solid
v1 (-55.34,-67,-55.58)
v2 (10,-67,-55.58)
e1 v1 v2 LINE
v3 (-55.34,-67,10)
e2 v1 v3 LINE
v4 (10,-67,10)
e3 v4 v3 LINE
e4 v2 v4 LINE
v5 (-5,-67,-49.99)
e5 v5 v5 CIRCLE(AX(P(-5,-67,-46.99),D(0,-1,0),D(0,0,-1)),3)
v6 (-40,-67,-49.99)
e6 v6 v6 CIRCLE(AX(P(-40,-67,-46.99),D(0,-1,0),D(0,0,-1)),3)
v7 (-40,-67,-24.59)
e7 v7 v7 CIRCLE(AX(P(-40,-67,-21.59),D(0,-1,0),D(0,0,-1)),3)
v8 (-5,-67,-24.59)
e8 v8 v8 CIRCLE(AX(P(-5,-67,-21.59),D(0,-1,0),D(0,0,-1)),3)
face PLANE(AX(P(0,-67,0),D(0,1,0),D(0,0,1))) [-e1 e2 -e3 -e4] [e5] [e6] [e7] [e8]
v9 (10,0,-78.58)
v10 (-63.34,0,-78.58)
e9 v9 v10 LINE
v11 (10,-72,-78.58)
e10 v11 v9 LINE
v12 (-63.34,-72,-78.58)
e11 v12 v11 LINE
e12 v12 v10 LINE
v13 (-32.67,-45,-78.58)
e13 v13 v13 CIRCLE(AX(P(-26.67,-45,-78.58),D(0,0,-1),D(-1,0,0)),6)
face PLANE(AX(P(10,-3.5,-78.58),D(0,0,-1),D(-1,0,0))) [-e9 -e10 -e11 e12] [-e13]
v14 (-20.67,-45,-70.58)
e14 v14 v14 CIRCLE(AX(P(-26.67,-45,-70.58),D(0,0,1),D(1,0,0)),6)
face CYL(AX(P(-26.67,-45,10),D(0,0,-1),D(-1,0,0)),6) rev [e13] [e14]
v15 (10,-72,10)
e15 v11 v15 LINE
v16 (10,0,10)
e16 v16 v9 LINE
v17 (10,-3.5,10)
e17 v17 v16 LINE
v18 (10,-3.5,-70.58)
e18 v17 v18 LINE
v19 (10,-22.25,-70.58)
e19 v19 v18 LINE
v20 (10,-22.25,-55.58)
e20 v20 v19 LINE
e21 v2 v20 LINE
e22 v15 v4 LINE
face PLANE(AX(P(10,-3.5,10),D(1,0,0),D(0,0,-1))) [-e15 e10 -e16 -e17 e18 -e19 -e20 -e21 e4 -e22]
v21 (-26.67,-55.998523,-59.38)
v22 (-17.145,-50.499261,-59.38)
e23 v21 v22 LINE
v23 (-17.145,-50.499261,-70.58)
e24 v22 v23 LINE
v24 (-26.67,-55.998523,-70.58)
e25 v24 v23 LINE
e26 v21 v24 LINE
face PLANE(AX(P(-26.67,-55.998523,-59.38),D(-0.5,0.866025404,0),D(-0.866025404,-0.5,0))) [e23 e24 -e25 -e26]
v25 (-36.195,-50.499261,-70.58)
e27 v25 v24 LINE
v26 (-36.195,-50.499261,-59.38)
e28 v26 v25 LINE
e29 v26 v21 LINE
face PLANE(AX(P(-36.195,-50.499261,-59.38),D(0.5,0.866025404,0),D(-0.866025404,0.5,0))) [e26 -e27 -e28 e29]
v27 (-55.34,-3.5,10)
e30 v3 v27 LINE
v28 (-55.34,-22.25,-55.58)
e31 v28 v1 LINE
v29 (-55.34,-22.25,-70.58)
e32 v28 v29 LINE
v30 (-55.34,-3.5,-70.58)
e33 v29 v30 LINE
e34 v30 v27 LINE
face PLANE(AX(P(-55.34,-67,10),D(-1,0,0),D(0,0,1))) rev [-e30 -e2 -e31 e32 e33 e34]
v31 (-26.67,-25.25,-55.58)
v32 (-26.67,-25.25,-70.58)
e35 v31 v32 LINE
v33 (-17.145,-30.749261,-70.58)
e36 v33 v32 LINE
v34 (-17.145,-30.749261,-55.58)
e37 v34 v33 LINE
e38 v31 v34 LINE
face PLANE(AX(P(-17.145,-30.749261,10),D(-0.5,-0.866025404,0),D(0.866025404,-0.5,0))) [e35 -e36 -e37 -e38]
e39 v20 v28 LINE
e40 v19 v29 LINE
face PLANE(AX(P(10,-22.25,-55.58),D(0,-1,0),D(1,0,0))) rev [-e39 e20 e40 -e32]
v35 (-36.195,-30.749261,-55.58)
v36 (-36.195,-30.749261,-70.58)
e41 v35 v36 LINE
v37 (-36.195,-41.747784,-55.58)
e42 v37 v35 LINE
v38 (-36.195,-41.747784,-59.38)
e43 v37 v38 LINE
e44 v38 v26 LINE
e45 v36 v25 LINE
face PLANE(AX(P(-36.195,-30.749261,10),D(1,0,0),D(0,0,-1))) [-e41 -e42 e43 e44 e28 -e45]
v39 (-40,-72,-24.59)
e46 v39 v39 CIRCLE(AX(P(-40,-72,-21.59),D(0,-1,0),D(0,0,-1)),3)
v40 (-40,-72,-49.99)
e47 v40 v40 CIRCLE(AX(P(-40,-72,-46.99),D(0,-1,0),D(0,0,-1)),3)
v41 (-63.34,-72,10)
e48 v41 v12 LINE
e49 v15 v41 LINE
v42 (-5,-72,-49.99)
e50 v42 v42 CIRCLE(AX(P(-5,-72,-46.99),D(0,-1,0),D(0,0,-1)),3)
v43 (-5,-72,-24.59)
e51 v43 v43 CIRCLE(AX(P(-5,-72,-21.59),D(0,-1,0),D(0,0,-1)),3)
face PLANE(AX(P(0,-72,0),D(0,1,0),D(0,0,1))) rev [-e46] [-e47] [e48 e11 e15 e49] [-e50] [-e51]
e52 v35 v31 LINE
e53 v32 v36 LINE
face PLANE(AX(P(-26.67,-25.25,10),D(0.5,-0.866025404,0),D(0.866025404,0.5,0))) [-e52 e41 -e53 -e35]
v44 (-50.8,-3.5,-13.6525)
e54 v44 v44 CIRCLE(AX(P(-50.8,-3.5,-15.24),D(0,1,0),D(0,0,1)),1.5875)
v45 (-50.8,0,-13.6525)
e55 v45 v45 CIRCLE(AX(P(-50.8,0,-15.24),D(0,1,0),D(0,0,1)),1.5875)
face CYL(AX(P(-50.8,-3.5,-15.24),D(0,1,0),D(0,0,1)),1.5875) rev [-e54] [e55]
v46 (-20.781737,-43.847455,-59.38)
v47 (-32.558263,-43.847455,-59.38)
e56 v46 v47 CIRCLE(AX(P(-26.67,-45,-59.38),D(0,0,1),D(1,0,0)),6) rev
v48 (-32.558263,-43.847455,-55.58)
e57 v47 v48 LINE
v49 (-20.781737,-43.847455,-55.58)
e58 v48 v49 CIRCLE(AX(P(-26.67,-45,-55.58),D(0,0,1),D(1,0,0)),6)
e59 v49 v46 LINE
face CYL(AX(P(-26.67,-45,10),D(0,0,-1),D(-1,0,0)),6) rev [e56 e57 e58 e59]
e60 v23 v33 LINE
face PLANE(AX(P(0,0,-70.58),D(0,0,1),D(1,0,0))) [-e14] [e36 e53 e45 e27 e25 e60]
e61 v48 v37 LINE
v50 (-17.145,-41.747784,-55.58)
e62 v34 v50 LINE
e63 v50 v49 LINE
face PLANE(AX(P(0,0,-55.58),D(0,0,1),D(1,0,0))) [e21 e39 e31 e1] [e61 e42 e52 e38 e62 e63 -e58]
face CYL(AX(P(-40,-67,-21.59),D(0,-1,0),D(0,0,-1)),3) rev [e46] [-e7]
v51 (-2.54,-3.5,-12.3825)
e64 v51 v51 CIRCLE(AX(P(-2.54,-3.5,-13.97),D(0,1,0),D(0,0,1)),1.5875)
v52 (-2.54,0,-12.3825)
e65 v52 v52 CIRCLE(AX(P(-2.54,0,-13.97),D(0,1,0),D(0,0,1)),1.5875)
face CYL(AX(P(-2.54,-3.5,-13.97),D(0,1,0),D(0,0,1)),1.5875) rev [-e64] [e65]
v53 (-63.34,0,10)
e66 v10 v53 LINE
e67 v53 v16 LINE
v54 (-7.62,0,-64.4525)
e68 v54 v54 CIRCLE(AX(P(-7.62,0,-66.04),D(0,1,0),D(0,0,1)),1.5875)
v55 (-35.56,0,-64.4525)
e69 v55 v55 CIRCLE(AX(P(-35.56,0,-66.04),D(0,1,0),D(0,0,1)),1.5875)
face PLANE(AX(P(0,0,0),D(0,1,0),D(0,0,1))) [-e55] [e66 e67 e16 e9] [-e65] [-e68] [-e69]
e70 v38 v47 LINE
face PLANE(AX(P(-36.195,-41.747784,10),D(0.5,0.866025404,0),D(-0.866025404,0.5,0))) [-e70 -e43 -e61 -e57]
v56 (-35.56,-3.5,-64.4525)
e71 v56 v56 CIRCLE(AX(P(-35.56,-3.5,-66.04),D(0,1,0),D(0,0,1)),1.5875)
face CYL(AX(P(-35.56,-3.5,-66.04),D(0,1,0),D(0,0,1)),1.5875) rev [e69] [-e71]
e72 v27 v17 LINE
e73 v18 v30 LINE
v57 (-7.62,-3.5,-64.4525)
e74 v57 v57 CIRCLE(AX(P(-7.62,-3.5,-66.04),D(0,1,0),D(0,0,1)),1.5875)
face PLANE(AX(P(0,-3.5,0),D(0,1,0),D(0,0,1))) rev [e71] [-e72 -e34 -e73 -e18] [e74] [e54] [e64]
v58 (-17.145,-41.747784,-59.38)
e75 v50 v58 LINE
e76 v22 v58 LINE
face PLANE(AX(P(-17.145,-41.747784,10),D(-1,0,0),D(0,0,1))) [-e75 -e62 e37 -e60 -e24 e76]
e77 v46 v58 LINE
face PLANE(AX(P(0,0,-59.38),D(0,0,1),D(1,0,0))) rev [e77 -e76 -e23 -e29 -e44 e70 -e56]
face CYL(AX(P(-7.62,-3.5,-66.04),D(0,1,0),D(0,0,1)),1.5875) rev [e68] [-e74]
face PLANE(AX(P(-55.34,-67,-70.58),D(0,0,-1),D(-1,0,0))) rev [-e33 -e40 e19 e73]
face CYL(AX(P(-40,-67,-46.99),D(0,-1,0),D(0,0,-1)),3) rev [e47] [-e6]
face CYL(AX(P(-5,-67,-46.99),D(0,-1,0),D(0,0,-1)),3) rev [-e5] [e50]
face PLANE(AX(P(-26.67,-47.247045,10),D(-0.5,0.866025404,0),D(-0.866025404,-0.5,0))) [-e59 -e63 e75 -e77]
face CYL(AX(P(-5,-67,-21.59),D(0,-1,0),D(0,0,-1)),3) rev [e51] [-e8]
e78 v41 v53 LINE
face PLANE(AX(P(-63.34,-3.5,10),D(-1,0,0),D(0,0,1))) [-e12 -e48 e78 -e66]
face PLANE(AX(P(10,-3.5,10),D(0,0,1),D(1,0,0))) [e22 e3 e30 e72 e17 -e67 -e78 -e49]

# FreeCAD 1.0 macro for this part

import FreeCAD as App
import Part
import Sketcher
Q = App.Units.Quantity

doc = App.newDocument("Part")
params = doc.addObject("Spreadsheet::Sheet", "Params")
for row, (alias, value) in enumerate([
    ("sketch1_width", "73.34 mm"),
    ("sketch1_height", "88.58 mm"),
    ("pad1_length", "3.5 mm"),
    ("pocket1_length", "3.5 mm"),
    ("sketch3_width", "8 mm"),
    ("sketch3_width2", "73.34 mm"),
    ("sketch3_height", "80.58 mm"),
    ("pad2_length", "63.5 mm"),
    ("sketch4_width", "73.34 mm"),
    ("sketch4_height", "88.58 mm"),
    ("pad3_length", "5 mm"),
    ("sketch5_diameter", "6 mm"),
    ("pocket2_length", "5 mm"),
    ("sketch6_width", "65.34 mm"),
    ("sketch6_height", "44.75 mm"),
    ("pad4_length", "15 mm"),
    ("sketch8_diameter", "12 mm"),
    ("pocket5_length", "11.2 mm"),
], start=1):
    params.set(f"A{row}", alias)
    params.set(f"B{row}", "=" + value)
    params.setAlias(f"B{row}", alias)

body = doc.addObject("PartDesign::Body", "Body")

# Sketch on XZ plane
sketch1 = doc.addObject("Sketcher::SketchObject", "Sketch")
body.addObject(sketch1)
sketch1.AttachmentSupport = (doc.XZ_Plane, [""])
sketch1.MapMode = "FlatFace"
sketch1.addGeometry([
    Part.LineSegment(App.Vector(-63.34, -78.58, 0), App.Vector(-63.34, 10, 0)),
    Part.LineSegment(App.Vector(-63.34, 10, 0), App.Vector(10, 10, 0)),
    Part.LineSegment(App.Vector(10, 10, 0), App.Vector(10, -78.58, 0)),
    Part.LineSegment(App.Vector(10, -78.58, 0), App.Vector(-63.34, -78.58, 0)),
], False)
sketch1.addConstraint([
    Sketcher.Constraint("Coincident", 0, 2, 1, 1),
    Sketcher.Constraint("Coincident", 1, 2, 2, 1),
    Sketcher.Constraint("Coincident", 2, 2, 3, 1),
    Sketcher.Constraint("Coincident", 3, 2, 0, 1),
    Sketcher.Constraint("Vertical", 0),
    Sketcher.Constraint("Horizontal", 1),
    Sketcher.Constraint("Vertical", 2),
    Sketcher.Constraint("Horizontal", 3),
    Sketcher.Constraint("DistanceY", -1, 1, 0, 2, 10.0),
    Sketcher.Constraint("DistanceX", -1, 1, 1, 2, 10.0),
    Sketcher.Constraint("DistanceX", 1, 1, 1, 2, 73.34),
    Sketcher.Constraint("DistanceY", 0, 1, 0, 2, 88.58),
])
sketch1.setExpression("Constraints[10]", "Params.sketch1_width")
sketch1.setExpression("Constraints[11]", "Params.sketch1_height")
pad1 = doc.addObject("PartDesign::Pad", "Pad")
body.addObject(pad1)
pad1.Profile = sketch1
pad1.setExpression("Length", "Params.pad1_length")

# Sketch on XZ plane
sketch2 = doc.addObject("Sketcher::SketchObject", "Sketch001")
body.addObject(sketch2)
sketch2.AttachmentSupport = (doc.XZ_Plane, [""])
sketch2.MapMode = "FlatFace"
sketch2.addGeometry([
    Part.Circle(App.Vector(-7.62, -66.04, 0), App.Vector(0, 0, 1), 1.5875),
    Part.Circle(App.Vector(-35.56, -66.04, 0), App.Vector(0, 0, 1), 1.5875),
    Part.Circle(App.Vector(-2.54, -13.97, 0), App.Vector(0, 0, 1), 1.5875),
    Part.Circle(App.Vector(-50.8, -15.24, 0), App.Vector(0, 0, 1), 1.5875),
], False)
sketch2.addConstraint([
    Sketcher.Constraint("Equal", 0, 1),
    Sketcher.Constraint("Equal", 1, 2),
    Sketcher.Constraint("Equal", 2, 3),
    Sketcher.Constraint("Horizontal", 0, 3, 1, 3),
    Sketcher.Constraint("Diameter", 0, 3.175),
    Sketcher.Constraint("DistanceX", 3, 3, -1, 1, 50.8),
    Sketcher.Constraint("DistanceY", 1, 3, 3, 3, 50.8),
    Sketcher.Constraint("DistanceX", 0, 3, -1, 1, 7.62),
    Sketcher.Constraint("DistanceY", 0, 3, -1, 1, 66.04),
    Sketcher.Constraint("DistanceX", 1, 3, -1, 1, 35.56),
    Sketcher.Constraint("DistanceX", 2, 3, -1, 1, 2.54),
    Sketcher.Constraint("DistanceY", 2, 3, -1, 1, 13.97),
])
pocket1 = doc.addObject("PartDesign::Pocket", "Pocket")
body.addObject(pocket1)
pocket1.Profile = sketch2
pocket1.setExpression("Length", "Params.pocket1_length")
pocket1.Reversed = True

# Sketch on XZ plane
sketch3 = doc.addObject("Sketcher::SketchObject", "Sketch002")
body.addObject(sketch3)
sketch3.AttachmentSupport = (doc.XZ_Plane, [""])
sketch3.MapMode = "FlatFace"
sketch3.AttachmentOffset = App.Placement(App.Vector(0, 0, 3.5), App.Rotation())
sketch3.addGeometry([
    Part.LineSegment(App.Vector(-63.34, -78.58, 0), App.Vector(10, -78.58, 0)),  # 0
    Part.LineSegment(App.Vector(10, -78.58, 0), App.Vector(10, -70.58, 0)),  # 1
    Part.LineSegment(App.Vector(10, -70.58, 0), App.Vector(-55.34, -70.58, 0)),  # 2
    Part.LineSegment(App.Vector(-55.34, -70.58, 0), App.Vector(-55.34, 10, 0)),  # 3
    Part.LineSegment(App.Vector(-55.34, 10, 0), App.Vector(-63.34, 10, 0)),  # 4
    Part.LineSegment(App.Vector(-63.34, 10, 0), App.Vector(-63.34, -78.58, 0)),  # 5
], False)
sketch3.addConstraint([
    Sketcher.Constraint("Coincident", 0, 2, 1, 1),
    Sketcher.Constraint("Coincident", 1, 2, 2, 1),
    Sketcher.Constraint("Coincident", 2, 2, 3, 1),
    Sketcher.Constraint("Coincident", 3, 2, 4, 1),
    Sketcher.Constraint("Coincident", 4, 2, 5, 1),
    Sketcher.Constraint("Coincident", 5, 2, 0, 1),
    Sketcher.Constraint("Horizontal", 0),
    Sketcher.Constraint("Vertical", 1),
    Sketcher.Constraint("Horizontal", 2),
    Sketcher.Constraint("Vertical", 3),
    Sketcher.Constraint("Horizontal", 4),
    Sketcher.Constraint("Vertical", 5),
    Sketcher.Constraint("Equal", 4, 1),
    Sketcher.Constraint("DistanceX", 4, 2, 4, 1, 8.0),
    Sketcher.Constraint("DistanceX", -1, 1, 0, 2, 10.0),
    Sketcher.Constraint("DistanceY", -1, 1, 3, 2, 10.0),
    Sketcher.Constraint("DistanceX", 0, 1, 0, 2, 73.34),
    Sketcher.Constraint("DistanceY", 3, 1, 3, 2, 80.58),
])
sketch3.setExpression("Constraints[13]", "Params.sketch3_width")
sketch3.setExpression("Constraints[16]", "Params.sketch3_width2")
sketch3.setExpression("Constraints[17]", "Params.sketch3_height")
pad2 = doc.addObject("PartDesign::Pad", "Pad001")
body.addObject(pad2)
pad2.Profile = sketch3
pad2.setExpression("Length", "Params.pad2_length")

# Sketch on XZ plane
sketch4 = doc.addObject("Sketcher::SketchObject", "Sketch003")
body.addObject(sketch4)
sketch4.AttachmentSupport = (doc.XZ_Plane, [""])
sketch4.MapMode = "FlatFace"
sketch4.AttachmentOffset = App.Placement(App.Vector(0, 0, 67), App.Rotation())
sketch4.addGeometry([
    Part.LineSegment(App.Vector(-63.34, 10, 0), App.Vector(-63.34, -78.58, 0)),
    Part.LineSegment(App.Vector(-63.34, -78.58, 0), App.Vector(10, -78.58, 0)),
    Part.LineSegment(App.Vector(10, -78.58, 0), App.Vector(10, 10, 0)),
    Part.LineSegment(App.Vector(10, 10, 0), App.Vector(-63.34, 10, 0)),
], False)
sketch4.addConstraint([
    Sketcher.Constraint("Coincident", 0, 2, 1, 1),
    Sketcher.Constraint("Coincident", 1, 2, 2, 1),
    Sketcher.Constraint("Coincident", 2, 2, 3, 1),
    Sketcher.Constraint("Coincident", 3, 2, 0, 1),
    Sketcher.Constraint("Vertical", 0),
    Sketcher.Constraint("Horizontal", 1),
    Sketcher.Constraint("Vertical", 2),
    Sketcher.Constraint("Horizontal", 3),
    Sketcher.Constraint("DistanceX", -1, 1, 1, 2, 10.0),
    Sketcher.Constraint("DistanceY", -1, 1, 2, 2, 10.0),
    Sketcher.Constraint("DistanceX", 1, 1, 1, 2, 73.34),
    Sketcher.Constraint("DistanceY", 0, 2, 0, 1, 88.58),
])
sketch4.setExpression("Constraints[10]", "Params.sketch4_width")
sketch4.setExpression("Constraints[11]", "Params.sketch4_height")
pad3 = doc.addObject("PartDesign::Pad", "Pad002")
body.addObject(pad3)
pad3.Profile = sketch4
pad3.setExpression("Length", "Params.pad3_length")

# Sketch on XZ plane
sketch5 = doc.addObject("Sketcher::SketchObject", "Sketch004")
body.addObject(sketch5)
sketch5.AttachmentSupport = (doc.XZ_Plane, [""])
sketch5.MapMode = "FlatFace"
sketch5.AttachmentOffset = App.Placement(App.Vector(0, 0, 72), App.Rotation())
sketch5.addGeometry([
    Part.Circle(App.Vector(-5, -21.59, 0), App.Vector(0, 0, 1), 3),
    Part.Circle(App.Vector(-5, -46.99, 0), App.Vector(0, 0, 1), 3),
    Part.Circle(App.Vector(-40, -21.59, 0), App.Vector(0, 0, 1), 3),
    Part.Circle(App.Vector(-40, -46.99, 0), App.Vector(0, 0, 1), 3),
], False)
sketch5.addConstraint([
    Sketcher.Constraint("Equal", 0, 1),
    Sketcher.Constraint("Equal", 1, 2),
    Sketcher.Constraint("Equal", 2, 3),
    Sketcher.Constraint("Horizontal", 0, 3, 2, 3),
    Sketcher.Constraint("Horizontal", 1, 3, 3, 3),
    Sketcher.Constraint("Vertical", 0, 3, 1, 3),
    Sketcher.Constraint("Vertical", 2, 3, 3, 3),
    Sketcher.Constraint("Diameter", 0, 6.0),
    Sketcher.Constraint("DistanceX", 0, 3, -1, 1, 5.0),
    Sketcher.Constraint("DistanceX", 2, 3, -1, 1, 40.0),
    Sketcher.Constraint("DistanceY", 1, 3, 0, 3, 25.4),
    Sketcher.Constraint("DistanceY", 0, 3, -1, 1, 21.59),
])
sketch5.setExpression("Constraints[7]", "Params.sketch5_diameter")
pocket2 = doc.addObject("PartDesign::Pocket", "Pocket001")
body.addObject(pocket2)
pocket2.Profile = sketch5
pocket2.setExpression("Length", "Params.pocket2_length")

# Sketch on XY plane
sketch6 = doc.addObject("Sketcher::SketchObject", "Sketch005")
body.addObject(sketch6)
sketch6.AttachmentSupport = (doc.XY_Plane, [""])
sketch6.MapMode = "FlatFace"
sketch6.AttachmentOffset = App.Placement(App.Vector(0, 0, -70.58), App.Rotation())
sketch6.addGeometry([
    Part.LineSegment(App.Vector(-55.34, -22.25, 0), App.Vector(-55.34, -67, 0)),
    Part.LineSegment(App.Vector(-55.34, -67, 0), App.Vector(10, -67, 0)),
    Part.LineSegment(App.Vector(10, -67, 0), App.Vector(10, -22.25, 0)),
    Part.LineSegment(App.Vector(10, -22.25, 0), App.Vector(-55.34, -22.25, 0)),
], False)
sketch6.addConstraint([
    Sketcher.Constraint("Coincident", 0, 2, 1, 1),
    Sketcher.Constraint("Coincident", 1, 2, 2, 1),
    Sketcher.Constraint("Coincident", 2, 2, 3, 1),
    Sketcher.Constraint("Coincident", 3, 2, 0, 1),
    Sketcher.Constraint("Vertical", 0),
    Sketcher.Constraint("Horizontal", 1),
    Sketcher.Constraint("Vertical", 2),
    Sketcher.Constraint("Horizontal", 3),
    Sketcher.Constraint("DistanceY", 0, 2, -1, 1, 67.0),
    Sketcher.Constraint("DistanceX", -1, 1, 1, 2, 10.0),
    Sketcher.Constraint("DistanceX", 1, 1, 1, 2, 65.34),
    Sketcher.Constraint("DistanceY", 0, 2, 0, 1, 44.75),
])
sketch6.setExpression("Constraints[10]", "Params.sketch6_width")
sketch6.setExpression("Constraints[11]", "Params.sketch6_height")
pad4 = doc.addObject("PartDesign::Pad", "Pad003")
body.addObject(pad4)
pad4.Profile = sketch6
pad4.setExpression("Length", "Params.pad4_length")

# Sketch on XY plane
sketch7 = doc.addObject("Sketcher::SketchObject", "Sketch006")
body.addObject(sketch7)
sketch7.AttachmentSupport = (doc.XY_Plane, [""])
sketch7.MapMode = "FlatFace"
sketch7.AttachmentOffset = App.Placement(App.Vector(0, 0, -70.58), App.Rotation())
sketch7.addGeometry([
    Part.LineSegment(App.Vector(-17.145, -41.747784, 0), App.Vector(-17.145, -30.749261, 0)),  # 0
    Part.LineSegment(App.Vector(-17.145, -30.749261, 0), App.Vector(-26.67, -25.25, 0)),  # 1
    Part.LineSegment(App.Vector(-26.67, -25.25, 0), App.Vector(-36.195, -30.749261, 0)),  # 2
    Part.LineSegment(App.Vector(-36.195, -30.749261, 0), App.Vector(-36.195, -41.747784, 0)),  # 3
    Part.LineSegment(App.Vector(-36.195, -41.747784, 0), App.Vector(-26.67, -47.247045, 0)),  # 4
    Part.LineSegment(App.Vector(-26.67, -47.247045, 0), App.Vector(-17.145, -41.747784, 0)),  # 5
], False)
sketch7.addConstraint([
    Sketcher.Constraint("Coincident", 0, 2, 1, 1),
    Sketcher.Constraint("Coincident", 1, 2, 2, 1),
    Sketcher.Constraint("Coincident", 2, 2, 3, 1),
    Sketcher.Constraint("Coincident", 3, 2, 4, 1),
    Sketcher.Constraint("Coincident", 4, 2, 5, 1),
    Sketcher.Constraint("Coincident", 5, 2, 0, 1),
    Sketcher.Constraint("Vertical", 0),
    Sketcher.Constraint("Vertical", 3),
    Sketcher.Constraint("Parallel", 1, 4),
    Sketcher.Constraint("Parallel", 2, 5),
    Sketcher.Constraint("Horizontal", 0, 2, 2, 2),
    Sketcher.Constraint("Horizontal", 3, 2, 5, 2),
    Sketcher.Constraint("Vertical", 1, 2, 4, 2),
    Sketcher.Constraint("Angle", 1, Q("150 deg")),
    Sketcher.Constraint("DistanceX", 1, 2, -1, 1, 26.67),
    Sketcher.Constraint("DistanceY", 1, 2, -1, 1, 25.25),
    Sketcher.Constraint("DistanceX", 2, 2, 0, 2, 19.05),
    Sketcher.Constraint("DistanceY", 0, 1, 0, 2, 10.998523),
])
pocket3 = doc.addObject("PartDesign::Pocket", "Pocket002")
body.addObject(pocket3)
pocket3.Profile = sketch7
pocket3.Type = "ThroughAll"
pocket3.Reversed = True

# Sketch on XY plane
sketch8 = doc.addObject("Sketcher::SketchObject", "Sketch007")
body.addObject(sketch8)
sketch8.AttachmentSupport = (doc.XY_Plane, [""])
sketch8.MapMode = "FlatFace"
sketch8.AttachmentOffset = App.Placement(App.Vector(0, 0, -78.58), App.Rotation())
sketch8.addGeometry(Part.Circle(App.Vector(-26.67, -45, 0), App.Vector(0, 0, 1), 6), False)
sketch8.addConstraint([
    Sketcher.Constraint("Diameter", 0, 12.0),
    Sketcher.Constraint("DistanceY", 0, 3, -1, 1, 45.0),
    Sketcher.Constraint("DistanceX", 0, 3, -1, 1, 26.67),
])
sketch8.setExpression("Constraints[0]", "Params.sketch8_diameter")
pocket4 = doc.addObject("PartDesign::Pocket", "Pocket003")
body.addObject(pocket4)
pocket4.Profile = sketch8
pocket4.Type = "ThroughAll"
pocket4.Reversed = True

# Sketch on XY plane
sketch9 = doc.addObject("Sketcher::SketchObject", "Sketch008")
body.addObject(sketch9)
sketch9.AttachmentSupport = (doc.XY_Plane, [""])
sketch9.MapMode = "FlatFace"
sketch9.AttachmentOffset = App.Placement(App.Vector(0, 0, -70.58), App.Rotation())
sketch9.addGeometry([
    Part.LineSegment(App.Vector(-17.145, -39.500739, 0), App.Vector(-26.67, -34.001477, 0)),  # 0
    Part.LineSegment(App.Vector(-26.67, -34.001477, 0), App.Vector(-36.195, -39.500739, 0)),  # 1
    Part.LineSegment(App.Vector(-36.195, -39.500739, 0), App.Vector(-36.195, -50.499261, 0)),  # 2
    Part.LineSegment(App.Vector(-36.195, -50.499261, 0), App.Vector(-26.67, -55.998523, 0)),  # 3
    Part.LineSegment(App.Vector(-26.67, -55.998523, 0), App.Vector(-17.145, -50.499261, 0)),  # 4
    Part.LineSegment(App.Vector(-17.145, -50.499261, 0), App.Vector(-17.145, -39.500739, 0)),  # 5
], False)
sketch9.addConstraint([
    Sketcher.Constraint("Coincident", 0, 2, 1, 1),
    Sketcher.Constraint("Coincident", 1, 2, 2, 1),
    Sketcher.Constraint("Coincident", 2, 2, 3, 1),
    Sketcher.Constraint("Coincident", 3, 2, 4, 1),
    Sketcher.Constraint("Coincident", 4, 2, 5, 1),
    Sketcher.Constraint("Coincident", 5, 2, 0, 1),
    Sketcher.Constraint("Vertical", 2),
    Sketcher.Constraint("Vertical", 5),
    Sketcher.Constraint("Parallel", 0, 3),
    Sketcher.Constraint("Parallel", 1, 4),
    Sketcher.Constraint("Horizontal", 2, 2, 4, 2),
    Sketcher.Constraint("Horizontal", 1, 2, 5, 2),
    Sketcher.Constraint("Vertical", 0, 2, 3, 2),
    Sketcher.Constraint("Angle", 0, Q("150 deg")),
    Sketcher.Constraint("DistanceX", 0, 2, -1, 1, 26.67),
    Sketcher.Constraint("DistanceX", 2, 2, 4, 2, 19.05),
    Sketcher.Constraint("DistanceY", 2, 2, 2, 1, 10.998523),
    Sketcher.Constraint("DistanceY", 1, 2, -1, 1, 39.500739),
])
pocket5 = doc.addObject("PartDesign::Pocket", "Pocket004")
body.addObject(pocket5)
pocket5.Profile = sketch9
pocket5.setExpression("Length", "Params.pocket5_length")
pocket5.Reversed = True

doc.recompute()
